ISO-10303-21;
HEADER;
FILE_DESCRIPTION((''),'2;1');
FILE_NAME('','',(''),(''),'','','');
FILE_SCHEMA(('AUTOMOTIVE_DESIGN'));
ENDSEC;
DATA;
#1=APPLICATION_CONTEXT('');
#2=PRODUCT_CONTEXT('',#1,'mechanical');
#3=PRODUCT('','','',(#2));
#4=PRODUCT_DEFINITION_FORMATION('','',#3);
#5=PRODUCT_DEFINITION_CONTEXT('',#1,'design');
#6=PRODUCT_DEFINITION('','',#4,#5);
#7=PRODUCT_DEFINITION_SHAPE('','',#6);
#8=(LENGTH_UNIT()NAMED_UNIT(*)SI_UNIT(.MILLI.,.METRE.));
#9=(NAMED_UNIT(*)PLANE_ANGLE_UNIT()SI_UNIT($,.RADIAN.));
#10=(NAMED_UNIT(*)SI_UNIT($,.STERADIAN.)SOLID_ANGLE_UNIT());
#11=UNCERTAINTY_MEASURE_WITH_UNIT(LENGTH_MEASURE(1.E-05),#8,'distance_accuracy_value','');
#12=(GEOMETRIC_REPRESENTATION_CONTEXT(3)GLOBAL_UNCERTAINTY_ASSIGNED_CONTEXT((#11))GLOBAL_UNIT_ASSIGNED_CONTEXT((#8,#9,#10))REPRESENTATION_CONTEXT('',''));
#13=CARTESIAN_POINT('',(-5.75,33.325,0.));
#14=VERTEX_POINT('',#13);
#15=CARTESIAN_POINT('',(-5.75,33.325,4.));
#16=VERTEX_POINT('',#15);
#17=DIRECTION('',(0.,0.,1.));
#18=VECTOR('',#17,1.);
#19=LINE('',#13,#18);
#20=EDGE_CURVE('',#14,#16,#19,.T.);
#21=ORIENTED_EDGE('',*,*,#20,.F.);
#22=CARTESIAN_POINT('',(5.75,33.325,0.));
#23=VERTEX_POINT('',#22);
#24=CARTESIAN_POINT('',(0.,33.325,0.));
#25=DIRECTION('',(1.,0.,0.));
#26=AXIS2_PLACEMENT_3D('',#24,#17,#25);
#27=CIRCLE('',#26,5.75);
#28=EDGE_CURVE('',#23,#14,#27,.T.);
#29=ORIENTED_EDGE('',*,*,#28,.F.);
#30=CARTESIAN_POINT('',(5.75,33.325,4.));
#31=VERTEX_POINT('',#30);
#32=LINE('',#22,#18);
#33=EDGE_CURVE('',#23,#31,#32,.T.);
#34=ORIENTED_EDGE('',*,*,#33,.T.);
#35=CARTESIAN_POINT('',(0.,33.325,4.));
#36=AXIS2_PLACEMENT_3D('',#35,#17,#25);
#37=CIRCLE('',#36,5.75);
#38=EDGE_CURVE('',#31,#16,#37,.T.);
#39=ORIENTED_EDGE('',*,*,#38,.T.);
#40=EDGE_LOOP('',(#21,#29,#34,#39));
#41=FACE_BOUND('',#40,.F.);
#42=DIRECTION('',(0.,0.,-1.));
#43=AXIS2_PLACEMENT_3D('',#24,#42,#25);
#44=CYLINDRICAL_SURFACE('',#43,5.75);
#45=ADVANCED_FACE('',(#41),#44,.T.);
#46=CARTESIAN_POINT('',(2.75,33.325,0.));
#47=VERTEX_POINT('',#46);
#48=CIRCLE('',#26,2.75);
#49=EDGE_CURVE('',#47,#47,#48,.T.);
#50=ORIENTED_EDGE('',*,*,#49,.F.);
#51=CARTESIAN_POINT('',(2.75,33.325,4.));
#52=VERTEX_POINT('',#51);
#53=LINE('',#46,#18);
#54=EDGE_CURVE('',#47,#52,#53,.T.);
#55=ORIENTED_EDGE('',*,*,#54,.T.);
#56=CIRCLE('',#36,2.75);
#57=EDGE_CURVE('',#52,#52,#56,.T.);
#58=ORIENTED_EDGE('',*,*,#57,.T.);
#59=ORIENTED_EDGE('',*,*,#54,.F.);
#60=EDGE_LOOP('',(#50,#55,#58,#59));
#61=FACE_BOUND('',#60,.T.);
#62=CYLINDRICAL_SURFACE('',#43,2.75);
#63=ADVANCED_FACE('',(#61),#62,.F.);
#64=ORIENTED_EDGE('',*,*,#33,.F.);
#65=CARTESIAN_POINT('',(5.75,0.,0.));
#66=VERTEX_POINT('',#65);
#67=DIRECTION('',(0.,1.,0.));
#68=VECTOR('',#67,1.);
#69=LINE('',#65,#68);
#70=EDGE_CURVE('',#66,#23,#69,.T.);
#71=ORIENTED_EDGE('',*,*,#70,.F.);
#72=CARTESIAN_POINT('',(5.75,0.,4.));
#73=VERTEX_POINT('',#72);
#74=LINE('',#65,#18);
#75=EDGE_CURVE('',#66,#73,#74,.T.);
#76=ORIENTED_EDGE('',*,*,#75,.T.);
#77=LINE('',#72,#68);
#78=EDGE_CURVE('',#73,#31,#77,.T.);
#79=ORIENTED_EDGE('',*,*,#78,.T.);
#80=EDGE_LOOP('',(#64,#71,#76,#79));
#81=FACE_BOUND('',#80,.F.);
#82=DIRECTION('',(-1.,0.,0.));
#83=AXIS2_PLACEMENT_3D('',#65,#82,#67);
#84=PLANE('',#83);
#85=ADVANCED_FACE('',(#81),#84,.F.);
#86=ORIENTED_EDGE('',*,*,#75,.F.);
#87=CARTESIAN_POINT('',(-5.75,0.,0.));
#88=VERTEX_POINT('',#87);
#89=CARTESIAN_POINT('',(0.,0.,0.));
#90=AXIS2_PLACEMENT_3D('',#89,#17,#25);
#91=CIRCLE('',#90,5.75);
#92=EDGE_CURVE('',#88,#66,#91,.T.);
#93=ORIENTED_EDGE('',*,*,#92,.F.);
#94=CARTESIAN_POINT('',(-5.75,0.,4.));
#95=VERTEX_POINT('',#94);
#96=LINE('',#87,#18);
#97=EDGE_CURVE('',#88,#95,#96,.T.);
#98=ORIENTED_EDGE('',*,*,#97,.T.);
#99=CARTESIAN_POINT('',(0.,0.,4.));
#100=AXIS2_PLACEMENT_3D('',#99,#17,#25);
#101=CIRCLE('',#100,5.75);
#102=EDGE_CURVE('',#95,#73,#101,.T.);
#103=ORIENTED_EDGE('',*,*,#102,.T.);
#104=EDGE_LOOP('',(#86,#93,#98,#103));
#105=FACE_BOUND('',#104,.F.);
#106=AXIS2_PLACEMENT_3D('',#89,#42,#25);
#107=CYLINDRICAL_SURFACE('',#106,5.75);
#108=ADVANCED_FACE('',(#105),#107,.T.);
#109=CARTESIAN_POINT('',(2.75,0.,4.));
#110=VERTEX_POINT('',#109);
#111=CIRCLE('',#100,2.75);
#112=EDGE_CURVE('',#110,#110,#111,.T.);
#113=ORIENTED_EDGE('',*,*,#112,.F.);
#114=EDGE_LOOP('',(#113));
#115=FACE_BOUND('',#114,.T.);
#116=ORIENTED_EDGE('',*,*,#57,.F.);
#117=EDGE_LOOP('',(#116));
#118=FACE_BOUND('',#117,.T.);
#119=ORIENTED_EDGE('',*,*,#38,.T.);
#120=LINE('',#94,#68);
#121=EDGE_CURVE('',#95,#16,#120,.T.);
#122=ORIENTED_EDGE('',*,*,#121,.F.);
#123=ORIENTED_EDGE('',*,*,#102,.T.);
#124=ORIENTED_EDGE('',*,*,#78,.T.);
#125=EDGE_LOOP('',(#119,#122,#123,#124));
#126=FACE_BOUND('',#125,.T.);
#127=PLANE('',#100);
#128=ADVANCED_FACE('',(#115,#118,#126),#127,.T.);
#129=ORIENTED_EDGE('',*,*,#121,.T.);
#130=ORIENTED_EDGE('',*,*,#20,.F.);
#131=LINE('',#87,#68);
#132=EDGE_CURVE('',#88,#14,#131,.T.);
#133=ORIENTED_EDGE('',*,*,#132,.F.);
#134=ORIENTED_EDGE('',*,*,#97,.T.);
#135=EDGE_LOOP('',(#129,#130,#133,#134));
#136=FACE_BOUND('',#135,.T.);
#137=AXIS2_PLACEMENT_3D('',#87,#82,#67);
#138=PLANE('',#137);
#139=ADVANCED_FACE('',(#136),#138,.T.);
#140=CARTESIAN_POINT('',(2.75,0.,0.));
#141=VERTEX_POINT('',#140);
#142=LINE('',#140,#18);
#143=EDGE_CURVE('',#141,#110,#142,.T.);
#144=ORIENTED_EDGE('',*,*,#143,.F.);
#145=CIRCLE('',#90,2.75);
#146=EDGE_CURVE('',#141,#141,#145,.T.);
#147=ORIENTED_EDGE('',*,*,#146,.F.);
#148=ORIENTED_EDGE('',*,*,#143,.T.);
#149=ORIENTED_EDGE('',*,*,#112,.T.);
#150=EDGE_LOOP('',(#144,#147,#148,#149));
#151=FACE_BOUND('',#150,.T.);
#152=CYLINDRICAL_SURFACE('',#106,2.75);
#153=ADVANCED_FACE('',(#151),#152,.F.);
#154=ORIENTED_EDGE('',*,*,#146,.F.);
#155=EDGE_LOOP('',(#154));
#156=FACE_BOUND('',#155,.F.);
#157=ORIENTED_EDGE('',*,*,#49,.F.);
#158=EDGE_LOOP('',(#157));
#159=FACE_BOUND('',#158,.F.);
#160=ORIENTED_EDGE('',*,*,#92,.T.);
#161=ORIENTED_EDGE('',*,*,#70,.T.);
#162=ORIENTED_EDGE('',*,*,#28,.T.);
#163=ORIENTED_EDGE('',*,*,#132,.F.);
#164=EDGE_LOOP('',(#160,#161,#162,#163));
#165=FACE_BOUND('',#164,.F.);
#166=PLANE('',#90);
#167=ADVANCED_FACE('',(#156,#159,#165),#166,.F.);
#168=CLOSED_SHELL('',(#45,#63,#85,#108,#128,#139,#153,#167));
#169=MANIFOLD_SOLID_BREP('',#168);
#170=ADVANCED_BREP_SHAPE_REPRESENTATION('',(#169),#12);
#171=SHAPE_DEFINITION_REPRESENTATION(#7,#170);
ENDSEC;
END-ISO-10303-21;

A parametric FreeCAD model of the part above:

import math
import FreeCAD as App
import Part
import Sketcher
Q = App.Units.Quantity

doc = App.newDocument("Part")
body = doc.addObject("PartDesign::Body", "Body")

sketch1 = body.newObject("Sketcher::SketchObject", "Sketch")
sketch1.AttachmentSupport = (doc.getObject("XY_Plane"), [""])
sketch1.MapMode = "FlatFace"
sketch1.addGeometry([
    Part.ArcOfCircle(Part.Circle(App.Vector(0, 0, 0), App.Vector(0, 0, 1), 5.8), math.radians(180), math.radians(360)),
    Part.LineSegment(App.Vector(5.8, 0, 0), App.Vector(5.8, 33.3, 0)),
    Part.ArcOfCircle(Part.Circle(App.Vector(0, 33.3, 0), App.Vector(0, 0, 1), 5.8), math.radians(0), math.radians(180)),
    Part.LineSegment(App.Vector(-5.8, 33.3, 0), App.Vector(-5.8, 0, 0)),
    Part.Circle(App.Vector(0, 0, 0), App.Vector(0, 0, 1), 2.8),
    Part.Circle(App.Vector(0, 33.3, 0), App.Vector(0, 0, 1), 2.8),
], False)
sketch1.addConstraint([
    Sketcher.Constraint("Tangent", 0, 2, 1, 1),
    Sketcher.Constraint("Tangent", 1, 2, 2, 1),
    Sketcher.Constraint("Tangent", 2, 2, 3, 1),
    Sketcher.Constraint("Tangent", 3, 2, 0, 1),
    Sketcher.Constraint("Vertical", 1),
    Sketcher.Constraint("Vertical", 3),
    Sketcher.Constraint("Coincident", 0, 3, -1, 1),
    Sketcher.Constraint("Coincident", 4, 3, -1, 1),
    Sketcher.Constraint("Coincident", 5, 3, 2, 3),
    Sketcher.Constraint("Equal", 4, 5),
    Sketcher.Constraint("Diameter", 4, Q("5.5 mm")),
    Sketcher.Constraint("Radius", 0, Q("5.75 mm")),
    Sketcher.Constraint("DistanceY", 1, 1, 1, 2, Q("33.325 mm")),
])
pad1 = body.newObject("PartDesign::Pad", "Pad")
pad1.Profile = sketch1
pad1.Length = 4

doc.recompute()
